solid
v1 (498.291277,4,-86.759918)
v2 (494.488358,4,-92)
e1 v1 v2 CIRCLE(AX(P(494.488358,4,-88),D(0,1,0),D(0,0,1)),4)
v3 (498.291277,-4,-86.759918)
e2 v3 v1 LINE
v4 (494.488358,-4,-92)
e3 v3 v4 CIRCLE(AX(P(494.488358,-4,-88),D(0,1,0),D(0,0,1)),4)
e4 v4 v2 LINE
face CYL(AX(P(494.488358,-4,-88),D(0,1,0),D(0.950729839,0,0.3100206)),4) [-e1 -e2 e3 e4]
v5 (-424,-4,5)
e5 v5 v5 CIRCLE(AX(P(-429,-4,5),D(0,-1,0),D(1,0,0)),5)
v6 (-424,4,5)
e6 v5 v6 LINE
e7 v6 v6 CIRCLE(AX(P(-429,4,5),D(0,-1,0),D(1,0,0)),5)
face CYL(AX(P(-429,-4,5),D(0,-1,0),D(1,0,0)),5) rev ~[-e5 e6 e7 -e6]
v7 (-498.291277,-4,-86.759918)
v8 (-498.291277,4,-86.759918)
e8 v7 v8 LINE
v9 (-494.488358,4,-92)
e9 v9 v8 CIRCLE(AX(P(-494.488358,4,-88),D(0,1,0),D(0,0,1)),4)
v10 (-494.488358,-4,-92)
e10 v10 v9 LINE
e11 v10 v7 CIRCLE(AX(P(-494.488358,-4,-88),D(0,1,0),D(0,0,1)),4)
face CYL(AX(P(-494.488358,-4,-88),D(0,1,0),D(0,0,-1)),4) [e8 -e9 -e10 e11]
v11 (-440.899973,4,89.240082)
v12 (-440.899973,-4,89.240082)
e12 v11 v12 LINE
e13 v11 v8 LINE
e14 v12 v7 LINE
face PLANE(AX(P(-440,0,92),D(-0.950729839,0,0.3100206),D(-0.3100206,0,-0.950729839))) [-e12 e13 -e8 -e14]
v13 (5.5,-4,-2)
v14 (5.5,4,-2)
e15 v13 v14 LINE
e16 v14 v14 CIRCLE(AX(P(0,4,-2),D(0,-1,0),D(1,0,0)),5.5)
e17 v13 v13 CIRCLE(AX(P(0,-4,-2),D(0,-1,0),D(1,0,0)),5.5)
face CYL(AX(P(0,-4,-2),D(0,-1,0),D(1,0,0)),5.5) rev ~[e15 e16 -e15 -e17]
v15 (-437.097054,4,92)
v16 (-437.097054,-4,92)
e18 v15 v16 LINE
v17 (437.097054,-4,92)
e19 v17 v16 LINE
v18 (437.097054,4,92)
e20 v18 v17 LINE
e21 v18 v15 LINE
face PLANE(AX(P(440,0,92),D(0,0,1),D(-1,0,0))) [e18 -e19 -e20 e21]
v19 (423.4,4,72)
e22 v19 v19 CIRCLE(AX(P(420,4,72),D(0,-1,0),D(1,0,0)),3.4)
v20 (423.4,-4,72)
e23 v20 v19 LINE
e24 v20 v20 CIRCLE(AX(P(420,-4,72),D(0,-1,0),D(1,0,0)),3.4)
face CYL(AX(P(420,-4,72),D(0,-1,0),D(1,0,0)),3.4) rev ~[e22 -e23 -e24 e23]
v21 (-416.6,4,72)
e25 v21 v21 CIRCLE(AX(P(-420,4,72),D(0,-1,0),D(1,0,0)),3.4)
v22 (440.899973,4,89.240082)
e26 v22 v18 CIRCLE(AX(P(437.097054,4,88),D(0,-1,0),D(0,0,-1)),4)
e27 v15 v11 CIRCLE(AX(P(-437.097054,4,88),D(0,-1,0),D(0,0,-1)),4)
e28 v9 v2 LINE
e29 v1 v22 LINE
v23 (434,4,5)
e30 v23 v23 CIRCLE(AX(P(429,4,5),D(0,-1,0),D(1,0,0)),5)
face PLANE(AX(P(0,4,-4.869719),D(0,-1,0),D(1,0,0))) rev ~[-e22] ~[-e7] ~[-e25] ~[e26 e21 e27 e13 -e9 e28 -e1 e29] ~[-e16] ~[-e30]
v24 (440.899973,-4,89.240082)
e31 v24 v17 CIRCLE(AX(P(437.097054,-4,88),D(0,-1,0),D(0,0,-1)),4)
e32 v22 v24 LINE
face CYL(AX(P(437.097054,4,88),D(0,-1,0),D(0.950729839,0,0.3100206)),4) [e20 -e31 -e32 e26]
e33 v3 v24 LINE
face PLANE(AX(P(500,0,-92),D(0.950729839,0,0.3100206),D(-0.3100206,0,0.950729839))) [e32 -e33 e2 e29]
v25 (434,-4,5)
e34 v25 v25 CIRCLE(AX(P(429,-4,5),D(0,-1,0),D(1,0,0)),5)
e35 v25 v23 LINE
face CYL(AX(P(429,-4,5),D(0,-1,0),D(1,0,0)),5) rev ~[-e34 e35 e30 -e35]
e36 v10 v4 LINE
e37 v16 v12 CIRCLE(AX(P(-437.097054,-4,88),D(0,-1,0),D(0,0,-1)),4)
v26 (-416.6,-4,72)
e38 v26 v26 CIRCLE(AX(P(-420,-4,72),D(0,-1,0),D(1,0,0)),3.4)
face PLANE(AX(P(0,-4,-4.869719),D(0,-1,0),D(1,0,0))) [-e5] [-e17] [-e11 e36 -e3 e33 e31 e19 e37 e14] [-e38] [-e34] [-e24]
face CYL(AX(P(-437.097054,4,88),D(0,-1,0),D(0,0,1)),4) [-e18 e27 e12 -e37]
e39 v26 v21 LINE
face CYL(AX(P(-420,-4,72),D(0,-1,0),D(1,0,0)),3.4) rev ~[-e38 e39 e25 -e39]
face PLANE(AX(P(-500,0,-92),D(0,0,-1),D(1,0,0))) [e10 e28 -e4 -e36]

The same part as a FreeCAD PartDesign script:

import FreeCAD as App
import Part
import Sketcher
from FreeCAD import Vector
Q = App.Units.Quantity


def edges_at(feature, points):
    """Names of the edges that pass closest to the given points."""
    edges = feature.Shape.Edges
    near = lambda p: min(range(len(edges)), key=lambda i: edges[i].distToShape(Part.Vertex(*p))[0])
    return sorted({f"Edge{near(p) + 1}" for p in points})


def add_polygon(sketch, points):
    """Adds a closed chain of lines whose ends are joined by coincident constraints."""
    first, n = sketch.GeometryCount, len(points)
    for a, b in zip(points, points[1:] + points[:1]):
        sketch.addGeometry(Part.LineSegment(App.Vector(*a, 0), App.Vector(*b, 0)), False)
    for i in range(n):
        sketch.addConstraint(Sketcher.Constraint("Coincident", first + i, 2, first + (i + 1) % n, 1))

doc = App.newDocument("Part")
body = doc.addObject("PartDesign::Body", "Body")

sketch1 = body.newObject("Sketcher::SketchObject", "Sketch")
sketch1.AttachmentSupport = (doc.getObject("XZ_Plane"), [""])
sketch1.MapMode = "FlatFace"
add_polygon(sketch1, [(500, -92), (440, 92), (-440, 92), (-500, -92)])
sketch1.addConstraint(Sketcher.Constraint("Horizontal", 1))
sketch1.addConstraint(Sketcher.Constraint("Horizontal", 3))
sketch1.addConstraint(Sketcher.Constraint("Equal", 0, 2))
sketch1.addConstraint(Sketcher.Constraint("DistanceX", 1, 2, 1, 1, Q("880 mm")))
sketch1.addConstraint(Sketcher.Constraint("DistanceX", 3, 1, 3, 2, Q("1000 mm")))
sketch1.addConstraint(Sketcher.Constraint("DistanceX", -1, 1, 0, 2, Q("440 mm")))
sketch1.addConstraint(Sketcher.Constraint("DistanceY", -1, 1, 0, 2, Q("92 mm")))
sketch1.addConstraint(Sketcher.Constraint("DistanceY", 2, 2, -1, 1, Q("92 mm")))
pad1 = body.newObject("PartDesign::Pad", "Pad")
pad1.Profile = sketch1
pad1.Length = 8
pad1.Midplane = True

sketch2 = body.newObject("Sketcher::SketchObject", "Sketch001")
sketch2.AttachmentSupport = (doc.getObject("XZ_Plane"), [""])
sketch2.MapMode = "FlatFace"
sketch2.AttachmentOffset = App.Placement(Vector(0, 0, 4), App.Rotation())
sketch2.addGeometry(Part.Circle(Vector(429, 5, 0), Vector(0, 0, 1), 5), False)
sketch2.addGeometry(Part.Circle(Vector(420, 72, 0), Vector(0, 0, 1), 3.4), False)
sketch2.addGeometry(Part.Circle(Vector(-420, 72, 0), Vector(0, 0, 1), 3.4), False)
sketch2.addGeometry(Part.Circle(Vector(-429, 5, 0), Vector(0, 0, 1), 5), False)
sketch2.addGeometry(Part.Circle(Vector(0, -2, 0), Vector(0, 0, 1), 5.5), False)
sketch2.addConstraint(Sketcher.Constraint("Equal", 1, 2))
sketch2.addConstraint(Sketcher.Constraint("Equal", 0, 3))
sketch2.addConstraint(Sketcher.Constraint("Symmetric", 1, 3, 2, 3, -2))
sketch2.addConstraint(Sketcher.Constraint("Symmetric", 0, 3, 3, 3, -2))
sketch2.addConstraint(Sketcher.Constraint("PointOnObject", 4, 3, -2))
sketch2.addConstraint(Sketcher.Constraint("Diameter", 0, Q("10 mm")))
sketch2.addConstraint(Sketcher.Constraint("Diameter", 4, Q("11 mm")))
sketch2.addConstraint(Sketcher.Constraint("Diameter", 1, Q("6.8 mm")))
sketch2.addConstraint(Sketcher.Constraint("DistanceX", -1, 1, 0, 3, Q("429 mm")))
sketch2.addConstraint(Sketcher.Constraint("DistanceY", -1, 1, 0, 3, Q("5 mm")))
sketch2.addConstraint(Sketcher.Constraint("DistanceX", -1, 1, 1, 3, Q("420 mm")))
sketch2.addConstraint(Sketcher.Constraint("DistanceY", -1, 1, 1, 3, Q("72 mm")))
sketch2.addConstraint(Sketcher.Constraint("DistanceY", 4, 3, -1, 1, Q("2 mm")))
pocket1 = body.newObject("PartDesign::Pocket", "Pocket")
pocket1.Profile = sketch2
pocket1.Length = 8
doc.recompute()

fillet = body.newObject("PartDesign::Fillet", "Fillet")
fillet.Base = (pocket1, edges_at(pocket1, [
    (500, 0, -92),
    (-500, 0, -92),
    (440, 0, 92),
    (-440, 0, 92),
]))
fillet.Radius = 4

doc.recompute()
